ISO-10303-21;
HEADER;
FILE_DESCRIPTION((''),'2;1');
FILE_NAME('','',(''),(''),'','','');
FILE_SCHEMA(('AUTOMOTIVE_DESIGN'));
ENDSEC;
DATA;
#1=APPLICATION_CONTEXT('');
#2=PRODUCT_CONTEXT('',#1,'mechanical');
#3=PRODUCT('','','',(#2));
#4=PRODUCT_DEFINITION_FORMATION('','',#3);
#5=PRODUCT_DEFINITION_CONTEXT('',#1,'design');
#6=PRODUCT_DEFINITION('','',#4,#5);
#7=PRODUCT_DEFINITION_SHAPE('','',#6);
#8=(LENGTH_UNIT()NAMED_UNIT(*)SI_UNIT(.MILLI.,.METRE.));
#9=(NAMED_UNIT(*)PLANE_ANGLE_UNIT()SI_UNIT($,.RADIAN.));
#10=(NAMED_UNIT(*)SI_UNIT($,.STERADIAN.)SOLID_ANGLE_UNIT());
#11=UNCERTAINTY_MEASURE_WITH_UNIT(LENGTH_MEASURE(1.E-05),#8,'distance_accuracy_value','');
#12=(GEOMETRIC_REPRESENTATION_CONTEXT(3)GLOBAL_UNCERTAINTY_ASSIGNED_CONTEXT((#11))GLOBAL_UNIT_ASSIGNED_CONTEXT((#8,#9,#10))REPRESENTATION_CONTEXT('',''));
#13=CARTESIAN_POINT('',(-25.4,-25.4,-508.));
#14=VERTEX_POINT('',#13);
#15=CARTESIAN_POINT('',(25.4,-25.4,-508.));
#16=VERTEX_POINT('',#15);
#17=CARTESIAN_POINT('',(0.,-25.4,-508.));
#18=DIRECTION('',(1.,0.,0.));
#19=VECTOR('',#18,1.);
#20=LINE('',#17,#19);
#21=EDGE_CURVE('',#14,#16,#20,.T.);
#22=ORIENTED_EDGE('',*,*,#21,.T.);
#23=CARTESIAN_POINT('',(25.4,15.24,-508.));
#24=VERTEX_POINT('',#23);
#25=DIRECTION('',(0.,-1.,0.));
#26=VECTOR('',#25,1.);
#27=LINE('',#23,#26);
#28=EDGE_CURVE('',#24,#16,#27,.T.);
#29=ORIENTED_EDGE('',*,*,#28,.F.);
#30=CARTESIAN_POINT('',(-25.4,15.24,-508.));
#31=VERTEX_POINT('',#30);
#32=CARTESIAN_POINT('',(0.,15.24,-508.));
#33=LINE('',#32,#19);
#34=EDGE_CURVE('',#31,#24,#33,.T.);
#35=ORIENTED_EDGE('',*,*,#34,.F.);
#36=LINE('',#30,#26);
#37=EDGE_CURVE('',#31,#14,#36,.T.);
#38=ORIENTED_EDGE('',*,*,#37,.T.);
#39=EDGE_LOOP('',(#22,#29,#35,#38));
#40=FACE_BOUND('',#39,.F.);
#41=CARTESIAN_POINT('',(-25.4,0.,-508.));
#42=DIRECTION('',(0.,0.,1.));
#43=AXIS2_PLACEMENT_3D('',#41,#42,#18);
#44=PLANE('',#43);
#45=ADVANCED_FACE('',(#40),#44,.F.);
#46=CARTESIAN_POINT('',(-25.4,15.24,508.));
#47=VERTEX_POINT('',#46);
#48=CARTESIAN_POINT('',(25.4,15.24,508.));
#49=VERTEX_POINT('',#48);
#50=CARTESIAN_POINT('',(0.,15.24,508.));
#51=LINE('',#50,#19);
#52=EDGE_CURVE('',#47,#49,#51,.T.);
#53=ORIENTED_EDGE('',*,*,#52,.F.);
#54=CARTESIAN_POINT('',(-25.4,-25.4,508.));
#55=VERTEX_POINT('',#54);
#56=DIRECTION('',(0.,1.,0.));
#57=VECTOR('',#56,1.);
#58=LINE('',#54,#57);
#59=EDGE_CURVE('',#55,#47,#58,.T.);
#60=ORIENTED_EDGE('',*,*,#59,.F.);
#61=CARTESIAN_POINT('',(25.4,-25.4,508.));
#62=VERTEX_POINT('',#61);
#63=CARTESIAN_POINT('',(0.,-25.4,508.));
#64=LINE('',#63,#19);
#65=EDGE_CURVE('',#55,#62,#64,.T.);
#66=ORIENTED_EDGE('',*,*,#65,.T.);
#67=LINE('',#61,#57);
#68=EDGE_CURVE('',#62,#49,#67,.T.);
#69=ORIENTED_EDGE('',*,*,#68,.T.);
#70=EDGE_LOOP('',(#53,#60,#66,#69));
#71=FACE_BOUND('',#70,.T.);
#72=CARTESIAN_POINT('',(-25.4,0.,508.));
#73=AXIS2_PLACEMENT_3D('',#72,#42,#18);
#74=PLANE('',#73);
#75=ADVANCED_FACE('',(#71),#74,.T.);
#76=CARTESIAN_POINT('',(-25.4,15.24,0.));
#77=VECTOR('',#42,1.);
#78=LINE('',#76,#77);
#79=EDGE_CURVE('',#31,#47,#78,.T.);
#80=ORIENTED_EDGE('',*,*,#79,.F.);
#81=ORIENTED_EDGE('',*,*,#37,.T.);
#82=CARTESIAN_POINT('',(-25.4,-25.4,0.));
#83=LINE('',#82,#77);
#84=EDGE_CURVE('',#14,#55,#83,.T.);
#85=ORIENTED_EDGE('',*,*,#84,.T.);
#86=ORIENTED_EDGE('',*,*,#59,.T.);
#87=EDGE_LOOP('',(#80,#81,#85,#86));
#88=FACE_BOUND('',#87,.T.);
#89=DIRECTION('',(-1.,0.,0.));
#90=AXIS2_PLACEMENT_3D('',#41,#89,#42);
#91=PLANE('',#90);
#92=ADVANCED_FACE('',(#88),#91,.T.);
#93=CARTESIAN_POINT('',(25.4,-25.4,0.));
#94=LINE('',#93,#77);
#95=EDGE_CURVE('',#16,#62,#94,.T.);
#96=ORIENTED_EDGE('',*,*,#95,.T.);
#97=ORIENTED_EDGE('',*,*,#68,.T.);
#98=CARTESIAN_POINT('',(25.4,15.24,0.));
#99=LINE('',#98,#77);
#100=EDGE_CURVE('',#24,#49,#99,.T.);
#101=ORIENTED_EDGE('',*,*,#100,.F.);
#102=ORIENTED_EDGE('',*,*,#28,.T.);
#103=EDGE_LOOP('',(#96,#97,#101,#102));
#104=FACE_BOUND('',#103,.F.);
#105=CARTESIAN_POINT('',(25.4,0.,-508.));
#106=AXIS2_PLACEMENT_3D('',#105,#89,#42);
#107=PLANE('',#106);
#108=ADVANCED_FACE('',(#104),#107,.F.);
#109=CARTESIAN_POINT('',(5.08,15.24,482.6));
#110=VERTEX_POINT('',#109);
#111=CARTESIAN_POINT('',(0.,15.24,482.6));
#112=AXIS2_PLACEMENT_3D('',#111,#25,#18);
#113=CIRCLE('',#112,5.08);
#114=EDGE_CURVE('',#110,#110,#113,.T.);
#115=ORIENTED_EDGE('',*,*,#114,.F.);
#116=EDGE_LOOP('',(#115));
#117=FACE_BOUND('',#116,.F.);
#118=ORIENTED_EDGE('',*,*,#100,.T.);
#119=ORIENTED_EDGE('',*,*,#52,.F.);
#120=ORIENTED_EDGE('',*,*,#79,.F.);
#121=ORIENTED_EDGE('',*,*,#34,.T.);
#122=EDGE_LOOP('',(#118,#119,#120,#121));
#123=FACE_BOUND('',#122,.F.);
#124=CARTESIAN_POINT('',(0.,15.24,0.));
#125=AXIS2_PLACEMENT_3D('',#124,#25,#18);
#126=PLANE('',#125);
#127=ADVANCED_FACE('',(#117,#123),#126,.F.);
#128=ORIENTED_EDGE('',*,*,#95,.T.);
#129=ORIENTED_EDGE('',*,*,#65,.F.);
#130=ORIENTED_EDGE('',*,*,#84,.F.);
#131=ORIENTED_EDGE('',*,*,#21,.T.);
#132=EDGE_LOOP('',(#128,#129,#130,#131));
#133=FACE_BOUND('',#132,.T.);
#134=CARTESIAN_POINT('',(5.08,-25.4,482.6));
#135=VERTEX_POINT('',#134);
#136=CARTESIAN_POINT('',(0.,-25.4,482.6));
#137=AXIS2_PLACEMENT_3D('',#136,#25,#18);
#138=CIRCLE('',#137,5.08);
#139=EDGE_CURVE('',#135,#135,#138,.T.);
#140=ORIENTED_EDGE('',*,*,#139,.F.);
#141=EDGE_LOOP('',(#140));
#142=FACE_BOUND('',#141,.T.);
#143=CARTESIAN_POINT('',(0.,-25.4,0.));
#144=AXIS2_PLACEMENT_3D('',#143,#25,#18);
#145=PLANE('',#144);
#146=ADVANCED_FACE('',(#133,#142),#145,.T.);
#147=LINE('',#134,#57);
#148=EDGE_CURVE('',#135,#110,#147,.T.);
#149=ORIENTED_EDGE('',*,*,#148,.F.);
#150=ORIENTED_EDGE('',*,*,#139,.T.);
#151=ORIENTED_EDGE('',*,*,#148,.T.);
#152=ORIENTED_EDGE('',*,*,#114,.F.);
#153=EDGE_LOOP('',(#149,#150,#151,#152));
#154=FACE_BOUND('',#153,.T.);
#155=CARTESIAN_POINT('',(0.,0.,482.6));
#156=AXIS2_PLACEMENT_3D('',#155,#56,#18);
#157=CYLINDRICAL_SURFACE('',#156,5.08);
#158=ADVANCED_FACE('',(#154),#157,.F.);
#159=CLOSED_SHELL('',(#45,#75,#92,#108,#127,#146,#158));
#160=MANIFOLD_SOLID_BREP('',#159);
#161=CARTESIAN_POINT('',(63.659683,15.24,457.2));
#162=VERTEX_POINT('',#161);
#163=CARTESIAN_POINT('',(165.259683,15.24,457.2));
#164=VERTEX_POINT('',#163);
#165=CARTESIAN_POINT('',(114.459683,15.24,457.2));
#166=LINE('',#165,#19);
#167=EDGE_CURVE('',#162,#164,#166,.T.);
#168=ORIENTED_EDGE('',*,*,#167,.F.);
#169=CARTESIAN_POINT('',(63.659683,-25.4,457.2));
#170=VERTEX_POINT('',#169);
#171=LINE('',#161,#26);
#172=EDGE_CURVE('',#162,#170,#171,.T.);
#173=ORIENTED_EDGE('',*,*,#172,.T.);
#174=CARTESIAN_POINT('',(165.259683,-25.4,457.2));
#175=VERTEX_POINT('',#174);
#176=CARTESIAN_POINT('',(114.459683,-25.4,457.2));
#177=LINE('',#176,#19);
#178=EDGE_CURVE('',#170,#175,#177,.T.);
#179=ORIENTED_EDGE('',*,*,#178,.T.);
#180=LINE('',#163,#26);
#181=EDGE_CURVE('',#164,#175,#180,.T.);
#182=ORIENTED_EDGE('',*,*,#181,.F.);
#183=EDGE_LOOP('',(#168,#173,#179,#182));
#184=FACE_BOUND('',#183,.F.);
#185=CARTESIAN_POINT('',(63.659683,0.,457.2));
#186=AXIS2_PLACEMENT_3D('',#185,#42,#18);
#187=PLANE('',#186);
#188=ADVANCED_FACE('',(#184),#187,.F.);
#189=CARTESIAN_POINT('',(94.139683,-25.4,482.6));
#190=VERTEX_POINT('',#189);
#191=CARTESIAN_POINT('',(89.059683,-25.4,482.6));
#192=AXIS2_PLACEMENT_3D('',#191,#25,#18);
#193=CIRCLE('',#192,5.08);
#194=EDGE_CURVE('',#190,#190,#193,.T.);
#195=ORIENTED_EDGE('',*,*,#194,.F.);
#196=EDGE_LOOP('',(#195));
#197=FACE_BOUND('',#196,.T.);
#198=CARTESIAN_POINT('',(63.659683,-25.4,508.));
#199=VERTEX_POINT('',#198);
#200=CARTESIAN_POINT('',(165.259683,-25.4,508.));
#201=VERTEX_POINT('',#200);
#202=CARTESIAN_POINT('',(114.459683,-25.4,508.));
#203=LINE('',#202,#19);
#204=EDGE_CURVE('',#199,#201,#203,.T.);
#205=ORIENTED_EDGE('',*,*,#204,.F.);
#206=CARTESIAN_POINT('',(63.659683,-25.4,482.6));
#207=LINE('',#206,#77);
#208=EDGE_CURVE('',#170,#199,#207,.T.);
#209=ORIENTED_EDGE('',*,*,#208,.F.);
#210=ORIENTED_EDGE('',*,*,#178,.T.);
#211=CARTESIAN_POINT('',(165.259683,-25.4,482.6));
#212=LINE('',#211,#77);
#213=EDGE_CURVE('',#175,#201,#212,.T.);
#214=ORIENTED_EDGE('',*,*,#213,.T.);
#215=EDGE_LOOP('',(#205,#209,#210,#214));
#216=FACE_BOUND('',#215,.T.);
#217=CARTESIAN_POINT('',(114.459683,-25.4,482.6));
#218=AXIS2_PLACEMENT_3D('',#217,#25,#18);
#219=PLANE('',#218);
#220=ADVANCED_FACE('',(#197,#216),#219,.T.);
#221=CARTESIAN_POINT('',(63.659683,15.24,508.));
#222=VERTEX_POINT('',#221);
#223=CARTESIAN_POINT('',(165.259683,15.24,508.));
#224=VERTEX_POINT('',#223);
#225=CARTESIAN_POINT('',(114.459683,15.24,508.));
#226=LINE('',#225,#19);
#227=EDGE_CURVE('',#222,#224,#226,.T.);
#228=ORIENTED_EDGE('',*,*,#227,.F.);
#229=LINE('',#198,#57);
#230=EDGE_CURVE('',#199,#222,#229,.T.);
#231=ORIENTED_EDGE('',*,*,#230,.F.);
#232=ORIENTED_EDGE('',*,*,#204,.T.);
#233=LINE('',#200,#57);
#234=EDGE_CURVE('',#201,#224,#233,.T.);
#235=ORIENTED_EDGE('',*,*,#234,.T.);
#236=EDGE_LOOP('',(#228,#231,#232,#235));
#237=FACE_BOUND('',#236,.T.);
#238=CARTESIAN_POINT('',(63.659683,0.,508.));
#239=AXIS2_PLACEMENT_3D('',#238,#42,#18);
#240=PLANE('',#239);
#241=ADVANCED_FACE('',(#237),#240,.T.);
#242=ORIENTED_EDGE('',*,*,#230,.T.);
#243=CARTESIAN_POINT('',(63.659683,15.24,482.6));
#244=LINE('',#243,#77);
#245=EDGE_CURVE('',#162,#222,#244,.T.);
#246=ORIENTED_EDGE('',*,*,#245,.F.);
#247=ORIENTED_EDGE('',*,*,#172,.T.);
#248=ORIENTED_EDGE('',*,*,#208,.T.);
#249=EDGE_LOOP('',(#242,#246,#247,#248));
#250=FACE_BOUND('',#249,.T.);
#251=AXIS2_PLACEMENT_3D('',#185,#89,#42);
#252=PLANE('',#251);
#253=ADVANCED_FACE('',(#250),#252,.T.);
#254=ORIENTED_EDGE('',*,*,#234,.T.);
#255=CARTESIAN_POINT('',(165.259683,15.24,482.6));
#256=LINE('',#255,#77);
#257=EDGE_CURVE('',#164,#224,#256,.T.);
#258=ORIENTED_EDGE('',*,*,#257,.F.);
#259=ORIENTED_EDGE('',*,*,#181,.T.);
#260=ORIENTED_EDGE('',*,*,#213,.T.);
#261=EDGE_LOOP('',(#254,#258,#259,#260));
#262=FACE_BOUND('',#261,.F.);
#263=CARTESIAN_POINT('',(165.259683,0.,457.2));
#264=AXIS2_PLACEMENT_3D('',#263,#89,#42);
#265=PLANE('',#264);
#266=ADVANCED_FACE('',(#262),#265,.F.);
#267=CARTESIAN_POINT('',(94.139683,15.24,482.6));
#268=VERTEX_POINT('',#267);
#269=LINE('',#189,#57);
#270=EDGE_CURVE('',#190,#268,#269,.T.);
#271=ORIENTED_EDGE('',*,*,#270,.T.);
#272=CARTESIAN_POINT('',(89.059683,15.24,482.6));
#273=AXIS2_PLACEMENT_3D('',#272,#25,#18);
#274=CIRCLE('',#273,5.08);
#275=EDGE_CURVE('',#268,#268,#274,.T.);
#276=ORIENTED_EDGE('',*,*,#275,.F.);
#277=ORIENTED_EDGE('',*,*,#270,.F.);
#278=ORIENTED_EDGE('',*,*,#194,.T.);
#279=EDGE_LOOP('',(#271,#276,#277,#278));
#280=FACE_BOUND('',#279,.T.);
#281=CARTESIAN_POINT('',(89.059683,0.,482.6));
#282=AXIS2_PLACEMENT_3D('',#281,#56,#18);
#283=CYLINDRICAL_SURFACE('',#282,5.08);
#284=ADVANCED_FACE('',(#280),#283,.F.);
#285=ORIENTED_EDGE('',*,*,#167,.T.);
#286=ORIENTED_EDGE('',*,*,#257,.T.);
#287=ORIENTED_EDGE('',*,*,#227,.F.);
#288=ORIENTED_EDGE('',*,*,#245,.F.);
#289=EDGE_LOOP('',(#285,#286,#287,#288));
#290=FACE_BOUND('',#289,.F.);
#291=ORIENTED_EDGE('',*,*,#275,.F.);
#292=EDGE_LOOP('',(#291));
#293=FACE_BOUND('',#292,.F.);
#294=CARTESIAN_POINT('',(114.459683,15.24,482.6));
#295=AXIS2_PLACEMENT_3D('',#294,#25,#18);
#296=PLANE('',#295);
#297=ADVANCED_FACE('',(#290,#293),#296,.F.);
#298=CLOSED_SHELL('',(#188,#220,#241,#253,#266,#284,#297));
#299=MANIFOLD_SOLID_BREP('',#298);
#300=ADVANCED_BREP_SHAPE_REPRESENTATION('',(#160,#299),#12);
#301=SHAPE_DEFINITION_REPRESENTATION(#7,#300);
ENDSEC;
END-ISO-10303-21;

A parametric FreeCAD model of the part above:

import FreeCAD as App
import Part
import Sketcher
Q = App.Units.Quantity


def add_polygon(sketch, points):
    """Adds a closed chain of lines whose ends are joined by coincident constraints."""
    first, n = sketch.GeometryCount, len(points)
    for a, b in zip(points, points[1:] + points[:1]):
        sketch.addGeometry(Part.LineSegment(App.Vector(*a, 0), App.Vector(*b, 0)), False)
    for i in range(n):
        sketch.addConstraint(Sketcher.Constraint("Coincident", first + i, 2, first + (i + 1) % n, 1))

doc = App.newDocument("Part")
body = doc.addObject("PartDesign::Body", "Body")

# Sketch on XZ plane
sketch1 = doc.addObject("Sketcher::SketchObject", "Sketch")
body.addObject(sketch1)
sketch1.AttachmentSupport = (doc.XZ_Plane, [""])
sketch1.MapMode = "FlatFace"
add_polygon(sketch1, [(64, 508), (64, 457), (165, 457), (165, 508)])  # lines 0-3
sketch1.addGeometry(Part.Circle(App.Vector(89, 483, 0), App.Vector(0, 0, 1), 5), False)  # 4
sketch1.addConstraint([
    Sketcher.Constraint("Vertical", 0),
    Sketcher.Constraint("Horizontal", 1),
    Sketcher.Constraint("Vertical", 2),
    Sketcher.Constraint("Horizontal", 3),
    Sketcher.Constraint("Diameter", 4, Q("0.4 in")),
    Sketcher.Constraint("DistanceX", 1, 1, 1, 2, Q("4 in")),
    Sketcher.Constraint("DistanceY", 0, 2, 0, 1, Q("2 in")),
    Sketcher.Constraint("DistanceY", -1, 1, 4, 3, Q("19 in")),
    Sketcher.Constraint("DistanceY", -1, 1, 0, 2, Q("18 in")),
    Sketcher.Constraint("DistanceX", 0, 2, 4, 3, Q("1 in")),
    Sketcher.Constraint("DistanceX", -1, 1, 4, 3, Q("89.059683 mm")),
])
pad1 = doc.addObject("PartDesign::Pad", "Pad")
body.addObject(pad1)
pad1.Profile = sketch1
pad1.Type = "TwoLengths"
pad1.Length = Q("0.6 in")
pad1.Length2 = Q("1 in")
pad1.Reversed = True
body2 = doc.addObject("PartDesign::Body", "Body001")

# Sketch on XZ plane
sketch2 = doc.addObject("Sketcher::SketchObject", "Sketch001")
body2.addObject(sketch2)
sketch2.AttachmentSupport = (doc.getObject("XZ_Plane001"), [""])
sketch2.MapMode = "FlatFace"
add_polygon(sketch2, [(-25, 508), (-25, -508), (25, -508), (25, 508)])  # lines 0-3
sketch2.addGeometry(Part.Circle(App.Vector(0, 483, 0), App.Vector(0, 0, 1), 5), False)  # 4
sketch2.addConstraint([
    Sketcher.Constraint("Vertical", 0),
    Sketcher.Constraint("Horizontal", 1),
    Sketcher.Constraint("Vertical", 2),
    Sketcher.Constraint("Horizontal", 3),
    Sketcher.Constraint("Symmetric", 0, 2, 2, 2, -1, 1),
    Sketcher.Constraint("PointOnObject", 4, 3, -2),
    Sketcher.Constraint("Diameter", 4, Q("0.4 in")),
    Sketcher.Constraint("DistanceX", 1, 1, 1, 2, Q("2 in")),
    Sketcher.Constraint("DistanceY", 0, 2, 0, 1, Q("40 in")),
    Sketcher.Constraint("DistanceY", -1, 1, 4, 3, Q("19 in")),
])
pad2 = doc.addObject("PartDesign::Pad", "Pad001")
body2.addObject(pad2)
pad2.Profile = sketch2
pad2.Type = "TwoLengths"
pad2.Length = Q("0.6 in")
pad2.Length2 = Q("1 in")
pad2.Reversed = True

doc.recompute()
